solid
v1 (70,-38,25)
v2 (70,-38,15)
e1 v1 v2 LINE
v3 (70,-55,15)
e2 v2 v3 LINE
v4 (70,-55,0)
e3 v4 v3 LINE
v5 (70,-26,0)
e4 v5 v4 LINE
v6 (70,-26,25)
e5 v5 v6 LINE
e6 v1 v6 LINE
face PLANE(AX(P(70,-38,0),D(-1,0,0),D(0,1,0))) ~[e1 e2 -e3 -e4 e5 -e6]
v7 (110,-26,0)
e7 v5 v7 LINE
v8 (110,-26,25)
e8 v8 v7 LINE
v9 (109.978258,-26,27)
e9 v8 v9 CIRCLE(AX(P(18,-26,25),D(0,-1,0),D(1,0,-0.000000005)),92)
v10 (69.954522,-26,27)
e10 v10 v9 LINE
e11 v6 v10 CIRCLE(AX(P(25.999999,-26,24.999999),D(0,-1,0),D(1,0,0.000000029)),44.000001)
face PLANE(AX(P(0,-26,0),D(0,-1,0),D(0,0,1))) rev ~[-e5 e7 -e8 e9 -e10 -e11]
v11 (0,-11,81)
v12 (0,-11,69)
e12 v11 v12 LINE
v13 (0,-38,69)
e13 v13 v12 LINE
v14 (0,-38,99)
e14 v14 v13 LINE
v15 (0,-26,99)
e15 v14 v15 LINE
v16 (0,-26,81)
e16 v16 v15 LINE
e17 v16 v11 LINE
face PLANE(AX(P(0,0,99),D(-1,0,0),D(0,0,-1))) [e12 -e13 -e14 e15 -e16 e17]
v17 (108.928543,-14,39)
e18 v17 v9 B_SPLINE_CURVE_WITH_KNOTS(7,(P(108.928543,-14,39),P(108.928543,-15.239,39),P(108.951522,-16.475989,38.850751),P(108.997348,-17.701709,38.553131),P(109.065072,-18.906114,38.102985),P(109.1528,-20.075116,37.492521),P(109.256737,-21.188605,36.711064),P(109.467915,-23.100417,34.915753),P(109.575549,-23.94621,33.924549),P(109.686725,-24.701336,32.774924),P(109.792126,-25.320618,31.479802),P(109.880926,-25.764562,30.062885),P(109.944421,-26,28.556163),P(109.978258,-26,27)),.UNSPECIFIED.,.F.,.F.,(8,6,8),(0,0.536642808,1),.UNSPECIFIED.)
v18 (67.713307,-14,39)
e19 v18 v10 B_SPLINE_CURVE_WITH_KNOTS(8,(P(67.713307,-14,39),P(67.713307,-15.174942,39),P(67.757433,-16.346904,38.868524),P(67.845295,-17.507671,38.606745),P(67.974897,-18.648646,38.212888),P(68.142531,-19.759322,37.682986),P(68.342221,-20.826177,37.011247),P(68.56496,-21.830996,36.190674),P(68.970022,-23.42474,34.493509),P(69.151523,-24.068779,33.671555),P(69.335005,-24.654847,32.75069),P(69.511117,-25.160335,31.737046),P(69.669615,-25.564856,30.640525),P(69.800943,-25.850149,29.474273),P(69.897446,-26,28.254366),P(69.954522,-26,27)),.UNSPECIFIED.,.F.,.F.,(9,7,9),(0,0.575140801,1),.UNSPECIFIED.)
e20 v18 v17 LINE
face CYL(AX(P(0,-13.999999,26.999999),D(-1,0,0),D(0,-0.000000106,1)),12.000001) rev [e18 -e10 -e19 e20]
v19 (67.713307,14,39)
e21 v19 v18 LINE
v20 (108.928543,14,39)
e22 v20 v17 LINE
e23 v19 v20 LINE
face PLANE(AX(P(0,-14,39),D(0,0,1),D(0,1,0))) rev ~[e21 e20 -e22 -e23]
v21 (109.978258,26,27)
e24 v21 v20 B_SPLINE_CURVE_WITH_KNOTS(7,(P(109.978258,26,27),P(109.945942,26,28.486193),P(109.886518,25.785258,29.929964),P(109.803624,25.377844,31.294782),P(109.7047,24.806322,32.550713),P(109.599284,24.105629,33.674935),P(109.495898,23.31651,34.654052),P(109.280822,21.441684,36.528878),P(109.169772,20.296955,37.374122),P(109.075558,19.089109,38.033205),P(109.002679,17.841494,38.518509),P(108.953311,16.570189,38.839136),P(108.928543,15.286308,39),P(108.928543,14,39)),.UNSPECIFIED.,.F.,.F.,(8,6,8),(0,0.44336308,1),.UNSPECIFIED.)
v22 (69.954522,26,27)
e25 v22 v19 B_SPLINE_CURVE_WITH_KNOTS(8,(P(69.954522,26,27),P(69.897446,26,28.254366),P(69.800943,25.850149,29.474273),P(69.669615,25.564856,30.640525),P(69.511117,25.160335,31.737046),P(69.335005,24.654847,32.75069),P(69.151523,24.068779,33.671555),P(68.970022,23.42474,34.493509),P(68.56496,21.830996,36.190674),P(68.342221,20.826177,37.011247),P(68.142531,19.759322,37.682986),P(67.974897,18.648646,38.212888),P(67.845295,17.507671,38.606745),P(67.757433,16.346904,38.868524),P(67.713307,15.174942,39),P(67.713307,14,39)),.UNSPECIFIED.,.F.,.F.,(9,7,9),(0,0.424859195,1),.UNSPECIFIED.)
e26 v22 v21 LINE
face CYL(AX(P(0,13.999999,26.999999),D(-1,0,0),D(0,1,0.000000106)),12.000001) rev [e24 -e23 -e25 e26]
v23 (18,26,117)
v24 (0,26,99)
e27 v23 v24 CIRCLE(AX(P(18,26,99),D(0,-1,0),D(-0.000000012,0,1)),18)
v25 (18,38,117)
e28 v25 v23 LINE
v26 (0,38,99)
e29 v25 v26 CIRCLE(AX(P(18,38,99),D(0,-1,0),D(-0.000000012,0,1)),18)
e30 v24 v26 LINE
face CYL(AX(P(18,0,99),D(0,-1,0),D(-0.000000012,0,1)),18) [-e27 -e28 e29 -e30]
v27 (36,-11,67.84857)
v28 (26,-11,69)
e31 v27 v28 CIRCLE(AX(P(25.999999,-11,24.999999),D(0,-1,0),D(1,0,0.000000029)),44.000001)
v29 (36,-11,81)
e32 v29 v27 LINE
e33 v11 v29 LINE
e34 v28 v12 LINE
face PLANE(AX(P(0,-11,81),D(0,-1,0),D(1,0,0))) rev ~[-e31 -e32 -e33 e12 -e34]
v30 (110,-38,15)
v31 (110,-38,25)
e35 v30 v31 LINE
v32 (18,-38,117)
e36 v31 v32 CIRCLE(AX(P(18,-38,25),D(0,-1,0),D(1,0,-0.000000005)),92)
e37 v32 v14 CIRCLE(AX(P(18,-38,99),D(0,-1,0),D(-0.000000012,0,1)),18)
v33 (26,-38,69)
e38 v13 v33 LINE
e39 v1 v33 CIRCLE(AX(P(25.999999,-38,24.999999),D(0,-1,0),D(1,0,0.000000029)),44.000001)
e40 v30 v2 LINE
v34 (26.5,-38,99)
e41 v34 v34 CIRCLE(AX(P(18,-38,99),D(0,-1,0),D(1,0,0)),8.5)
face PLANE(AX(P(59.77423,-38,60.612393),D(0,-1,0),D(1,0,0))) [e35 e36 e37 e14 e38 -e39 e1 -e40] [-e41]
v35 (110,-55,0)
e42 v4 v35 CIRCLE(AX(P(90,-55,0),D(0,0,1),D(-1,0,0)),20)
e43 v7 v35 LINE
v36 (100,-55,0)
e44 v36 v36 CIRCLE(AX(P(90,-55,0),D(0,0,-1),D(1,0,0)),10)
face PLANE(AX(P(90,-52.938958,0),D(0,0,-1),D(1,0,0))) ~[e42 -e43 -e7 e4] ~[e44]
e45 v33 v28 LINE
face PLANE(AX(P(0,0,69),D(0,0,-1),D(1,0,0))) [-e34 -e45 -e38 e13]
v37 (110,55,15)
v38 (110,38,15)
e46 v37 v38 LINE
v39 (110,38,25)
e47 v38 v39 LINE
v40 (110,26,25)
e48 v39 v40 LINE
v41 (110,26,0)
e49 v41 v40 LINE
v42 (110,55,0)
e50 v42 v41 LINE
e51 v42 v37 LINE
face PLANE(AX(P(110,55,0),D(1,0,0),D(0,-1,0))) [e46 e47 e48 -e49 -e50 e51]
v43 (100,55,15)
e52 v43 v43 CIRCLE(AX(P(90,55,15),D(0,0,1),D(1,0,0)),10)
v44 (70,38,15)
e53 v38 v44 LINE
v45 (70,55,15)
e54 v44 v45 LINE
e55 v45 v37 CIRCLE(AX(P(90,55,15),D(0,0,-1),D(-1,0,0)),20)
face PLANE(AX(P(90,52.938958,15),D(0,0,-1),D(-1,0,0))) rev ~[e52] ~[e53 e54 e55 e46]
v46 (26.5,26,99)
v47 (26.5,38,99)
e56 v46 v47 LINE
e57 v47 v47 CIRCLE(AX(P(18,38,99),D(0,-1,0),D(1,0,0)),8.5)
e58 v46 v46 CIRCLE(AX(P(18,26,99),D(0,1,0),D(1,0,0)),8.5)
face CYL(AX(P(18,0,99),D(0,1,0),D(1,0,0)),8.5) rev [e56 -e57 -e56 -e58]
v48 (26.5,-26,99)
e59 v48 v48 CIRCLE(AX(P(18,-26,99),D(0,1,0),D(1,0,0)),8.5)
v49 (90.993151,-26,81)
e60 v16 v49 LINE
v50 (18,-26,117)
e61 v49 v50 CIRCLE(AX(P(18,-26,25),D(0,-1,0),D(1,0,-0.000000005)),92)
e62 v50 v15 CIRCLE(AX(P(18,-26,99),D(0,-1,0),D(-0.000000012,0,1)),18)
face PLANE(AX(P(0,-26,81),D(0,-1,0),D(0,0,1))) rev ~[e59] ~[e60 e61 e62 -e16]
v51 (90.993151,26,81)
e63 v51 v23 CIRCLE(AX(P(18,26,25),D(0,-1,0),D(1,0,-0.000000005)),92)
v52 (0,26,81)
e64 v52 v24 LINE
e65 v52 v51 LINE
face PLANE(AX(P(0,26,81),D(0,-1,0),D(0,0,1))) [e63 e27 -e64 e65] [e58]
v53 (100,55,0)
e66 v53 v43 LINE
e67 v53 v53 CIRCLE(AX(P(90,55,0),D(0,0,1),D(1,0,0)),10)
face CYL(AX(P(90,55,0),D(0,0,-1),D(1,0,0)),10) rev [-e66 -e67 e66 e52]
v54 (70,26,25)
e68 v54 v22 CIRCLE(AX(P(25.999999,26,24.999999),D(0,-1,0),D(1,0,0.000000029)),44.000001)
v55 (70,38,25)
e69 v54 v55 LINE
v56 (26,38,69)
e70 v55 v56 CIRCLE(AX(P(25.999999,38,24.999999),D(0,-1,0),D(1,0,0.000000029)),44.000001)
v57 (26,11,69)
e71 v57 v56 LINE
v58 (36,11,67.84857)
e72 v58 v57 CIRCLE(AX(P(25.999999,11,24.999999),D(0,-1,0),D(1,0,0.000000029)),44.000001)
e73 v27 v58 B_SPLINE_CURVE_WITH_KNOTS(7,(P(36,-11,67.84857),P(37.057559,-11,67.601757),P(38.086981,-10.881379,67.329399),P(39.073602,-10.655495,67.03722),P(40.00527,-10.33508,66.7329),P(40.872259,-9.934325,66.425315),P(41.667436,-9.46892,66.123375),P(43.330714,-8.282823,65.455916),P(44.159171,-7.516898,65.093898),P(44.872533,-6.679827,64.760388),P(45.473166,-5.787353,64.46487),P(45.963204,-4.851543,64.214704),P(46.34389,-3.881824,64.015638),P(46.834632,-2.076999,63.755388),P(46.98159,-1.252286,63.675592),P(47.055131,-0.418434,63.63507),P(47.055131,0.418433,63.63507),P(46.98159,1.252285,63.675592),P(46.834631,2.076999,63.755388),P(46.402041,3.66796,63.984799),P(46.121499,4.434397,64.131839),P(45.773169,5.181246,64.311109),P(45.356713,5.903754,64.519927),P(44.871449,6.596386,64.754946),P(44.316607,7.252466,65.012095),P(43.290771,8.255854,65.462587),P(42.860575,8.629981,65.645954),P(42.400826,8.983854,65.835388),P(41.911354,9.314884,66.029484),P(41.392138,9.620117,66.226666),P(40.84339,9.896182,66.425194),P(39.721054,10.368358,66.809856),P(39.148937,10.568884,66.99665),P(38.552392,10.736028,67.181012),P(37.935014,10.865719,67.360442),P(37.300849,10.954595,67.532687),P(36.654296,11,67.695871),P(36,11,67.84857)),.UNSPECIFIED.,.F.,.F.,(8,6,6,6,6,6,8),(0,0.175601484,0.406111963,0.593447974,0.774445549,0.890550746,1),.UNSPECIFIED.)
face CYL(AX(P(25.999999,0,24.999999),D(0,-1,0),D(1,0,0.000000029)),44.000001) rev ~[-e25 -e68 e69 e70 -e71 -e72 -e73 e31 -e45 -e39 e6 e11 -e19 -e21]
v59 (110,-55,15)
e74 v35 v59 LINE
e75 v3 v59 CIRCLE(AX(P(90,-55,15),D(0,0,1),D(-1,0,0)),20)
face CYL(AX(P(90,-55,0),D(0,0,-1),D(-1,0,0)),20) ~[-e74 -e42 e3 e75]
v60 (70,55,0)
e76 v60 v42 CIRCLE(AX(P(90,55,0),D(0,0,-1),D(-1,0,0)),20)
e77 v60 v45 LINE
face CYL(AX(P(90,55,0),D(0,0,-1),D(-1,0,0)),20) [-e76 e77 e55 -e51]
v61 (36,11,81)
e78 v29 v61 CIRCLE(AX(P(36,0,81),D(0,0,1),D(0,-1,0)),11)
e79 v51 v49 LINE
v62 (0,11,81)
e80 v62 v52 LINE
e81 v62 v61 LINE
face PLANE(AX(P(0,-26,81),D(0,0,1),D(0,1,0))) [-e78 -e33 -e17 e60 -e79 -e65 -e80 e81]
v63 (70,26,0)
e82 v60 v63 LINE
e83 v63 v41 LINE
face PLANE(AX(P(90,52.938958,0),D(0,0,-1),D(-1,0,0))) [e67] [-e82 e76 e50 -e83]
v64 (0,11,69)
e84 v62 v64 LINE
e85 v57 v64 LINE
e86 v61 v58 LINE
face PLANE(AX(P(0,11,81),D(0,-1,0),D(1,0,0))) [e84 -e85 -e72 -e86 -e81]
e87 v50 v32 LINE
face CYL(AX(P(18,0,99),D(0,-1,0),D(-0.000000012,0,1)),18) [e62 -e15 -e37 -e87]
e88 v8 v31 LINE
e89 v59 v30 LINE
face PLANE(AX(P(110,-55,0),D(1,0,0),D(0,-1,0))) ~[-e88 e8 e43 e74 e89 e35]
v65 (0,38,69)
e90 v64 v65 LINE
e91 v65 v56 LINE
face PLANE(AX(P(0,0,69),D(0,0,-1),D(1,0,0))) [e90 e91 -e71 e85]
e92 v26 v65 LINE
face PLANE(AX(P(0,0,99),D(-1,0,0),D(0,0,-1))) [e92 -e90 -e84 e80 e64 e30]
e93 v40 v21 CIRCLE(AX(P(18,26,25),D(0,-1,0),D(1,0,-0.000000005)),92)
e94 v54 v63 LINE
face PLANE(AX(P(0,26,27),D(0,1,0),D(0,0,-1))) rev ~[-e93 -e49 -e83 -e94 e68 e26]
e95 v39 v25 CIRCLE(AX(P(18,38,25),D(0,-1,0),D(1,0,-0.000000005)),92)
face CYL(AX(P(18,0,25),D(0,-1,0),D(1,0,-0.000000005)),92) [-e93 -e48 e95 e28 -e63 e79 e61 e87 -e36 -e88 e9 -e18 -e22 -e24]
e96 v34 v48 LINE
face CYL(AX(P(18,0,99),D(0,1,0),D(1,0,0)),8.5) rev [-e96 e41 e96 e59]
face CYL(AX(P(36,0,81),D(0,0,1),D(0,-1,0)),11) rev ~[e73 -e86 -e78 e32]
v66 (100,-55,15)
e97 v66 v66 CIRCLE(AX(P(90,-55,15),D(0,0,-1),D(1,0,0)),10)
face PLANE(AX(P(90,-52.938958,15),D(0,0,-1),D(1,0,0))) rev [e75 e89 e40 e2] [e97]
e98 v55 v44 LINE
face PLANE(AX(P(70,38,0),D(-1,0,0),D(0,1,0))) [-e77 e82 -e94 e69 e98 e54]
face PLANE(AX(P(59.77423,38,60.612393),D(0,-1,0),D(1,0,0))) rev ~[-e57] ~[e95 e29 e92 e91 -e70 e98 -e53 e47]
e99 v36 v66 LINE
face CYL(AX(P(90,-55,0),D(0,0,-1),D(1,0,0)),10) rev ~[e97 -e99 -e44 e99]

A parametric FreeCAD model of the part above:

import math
import FreeCAD as App
import Part
import Sketcher


def add_polygon(sketch, points):
    """Adds a closed chain of lines whose ends are joined by coincident constraints."""
    first, n = sketch.GeometryCount, len(points)
    for a, b in zip(points, points[1:] + points[:1]):
        sketch.addGeometry(Part.LineSegment(App.Vector(*a, 0), App.Vector(*b, 0)), False)
    for i in range(n):
        sketch.addConstraint(Sketcher.Constraint("Coincident", first + i, 2, first + (i + 1) % n, 1))

doc = App.newDocument("Part")
body = doc.addObject("PartDesign::Body", "Body")

sketch1 = body.newObject("Sketcher::SketchObject", "Sketch")
sketch1.AttachmentSupport = (doc.getObject("XZ_Plane"), [""])
sketch1.MapMode = "FlatFace"
sketch1.addGeometry([
    Part.LineSegment(App.Vector(70, 0, 0), App.Vector(110, 0, 0)),
    Part.LineSegment(App.Vector(110, 0, 0), App.Vector(110, 25, 0)),
    Part.ArcOfCircle(Part.Circle(App.Vector(18, 25, 0), App.Vector(0, 0, 1), 92), math.radians(0), math.radians(90)),
    Part.ArcOfCircle(Part.Circle(App.Vector(18, 99, 0), App.Vector(0, 0, 1), 18), math.radians(90), math.radians(180)),
    Part.LineSegment(App.Vector(0, 99, 0), App.Vector(0, 69, 0)),
    Part.LineSegment(App.Vector(0, 69, 0), App.Vector(26, 69, 0)),
    Part.ArcOfCircle(Part.Circle(App.Vector(26, 25, 0), App.Vector(0, 0, 1), 44), math.radians(0), math.radians(90)),
    Part.LineSegment(App.Vector(70, 25, 0), App.Vector(70, 0, 0)),
    Part.Circle(App.Vector(18, 99, 0), App.Vector(0, 0, 1), 8),
], False)
sketch1.addConstraint([
    Sketcher.Constraint("Coincident", 0, 2, 1, 1),
    Sketcher.Constraint("Tangent", 1, 2, 2, 1),
    Sketcher.Constraint("Tangent", 2, 2, 3, 1),
    Sketcher.Constraint("Tangent", 3, 2, 4, 1),
    Sketcher.Constraint("Coincident", 4, 2, 5, 1),
    Sketcher.Constraint("Tangent", 5, 2, 6, 2),
    Sketcher.Constraint("Tangent", 6, 1, 7, 1),
    Sketcher.Constraint("Coincident", 7, 2, 0, 1),
    Sketcher.Constraint("Horizontal", 0),
    Sketcher.Constraint("Vertical", 1),
    Sketcher.Constraint("Vertical", 4),
    Sketcher.Constraint("Horizontal", 5),
    Sketcher.Constraint("Vertical", 7),
    Sketcher.Constraint("Coincident", 8, 3, 3, 3),
    Sketcher.Constraint("PointOnObject", 0, 2, -1),
    Sketcher.Constraint("PointOnObject", 3, 2, -2),
    Sketcher.Constraint("Horizontal", 2, 3, 6, 3),
    Sketcher.Constraint("Vertical", 2, 3, 3, 3),
    Sketcher.Constraint("Diameter", 8, 17.0),
    Sketcher.Constraint("Radius", 2, 92.0),
    Sketcher.Constraint("Radius", 3, 18.0),
    Sketcher.Constraint("Radius", 6, 44.000001),
    Sketcher.Constraint("DistanceX", 0, 1, 0, 2, 40.0),
    Sketcher.Constraint("DistanceY", 1, 1, 1, 2, 25.0),
])
pad1 = body.newObject("PartDesign::Pad", "Pad")
pad1.Profile = sketch1
pad1.Length = 76
pad1.Midplane = True

sketch2 = body.newObject("Sketcher::SketchObject", "Sketch001")
sketch2.AttachmentSupport = (doc.getObject("YZ_Plane"), [""])
sketch2.MapMode = "FlatFace"
sketch2.addGeometry(Part.LineSegment(App.Vector(-26, 27, 0), App.Vector(-26, 0, 0)), False)
sketch2.addGeometry(Part.LineSegment(App.Vector(-26, 0, 0), App.Vector(26, 0, 0)), False)
sketch2.addGeometry(Part.LineSegment(App.Vector(26, 0, 0), App.Vector(26, 27, 0)), False)
sketch2.addGeometry(Part.ArcOfCircle(Part.Circle(App.Vector(14, 27, 0), App.Vector(0, 0, 1), 12), math.radians(0), math.radians(90)), False)
sketch2.addGeometry(Part.LineSegment(App.Vector(14, 39, 0), App.Vector(-14, 39, 0)), False)
sketch2.addGeometry(Part.ArcOfCircle(Part.Circle(App.Vector(-14, 27, 0), App.Vector(0, 0, 1), 12), math.radians(90), math.radians(180)), False)
add_polygon(sketch2, [(-26, 117), (-26, 81), (26, 81), (26, 117)])
sketch2.addConstraint([
    Sketcher.Constraint("Coincident", 0, 2, 1, 1),
    Sketcher.Constraint("Coincident", 1, 2, 2, 1),
    Sketcher.Constraint("Tangent", 2, 2, 3, 1),
    Sketcher.Constraint("Tangent", 3, 2, 4, 1),
    Sketcher.Constraint("Tangent", 4, 2, 5, 1),
    Sketcher.Constraint("Tangent", 5, 2, 0, 1),
    Sketcher.Constraint("Vertical", 0),
    Sketcher.Constraint("Horizontal", 1),
    Sketcher.Constraint("Vertical", 2),
    Sketcher.Constraint("Horizontal", 4),
    Sketcher.Constraint("Vertical", 6),
    Sketcher.Constraint("Horizontal", 7),
    Sketcher.Constraint("Vertical", 8),
    Sketcher.Constraint("Horizontal", 9),
    Sketcher.Constraint("Equal", 3, 5),
    Sketcher.Constraint("Symmetric", 0, 2, 1, 2, -1, 1),
    Sketcher.Constraint("Vertical", 5, 2, 6, 2),
    Sketcher.Constraint("Vertical", 2, 2, 7, 2),
    Sketcher.Constraint("Radius", 3, 12.000001),
    Sketcher.Constraint("DistanceX", 1, 1, 1, 2, 52.0),
    Sketcher.Constraint("DistanceY", 0, 2, 0, 1, 27.0),
    Sketcher.Constraint("DistanceY", 6, 2, 6, 1, 36.0),
    Sketcher.Constraint("DistanceY", -1, 1, 6, 2, 81.0),
])
pocket1 = body.newObject("PartDesign::Pocket", "Pocket")
pocket1.Profile = sketch2
pocket1.Type = "ThroughAll"
pocket1.Midplane = True

sketch3 = body.newObject("Sketcher::SketchObject", "Sketch002")
sketch3.AttachmentSupport = (doc.getObject("XY_Plane"), [""])
sketch3.MapMode = "FlatFace"
sketch3.AttachmentOffset = App.Placement(App.Vector(0, 0, 81), App.Rotation())
sketch3.addGeometry([
    Part.ArcOfCircle(Part.Circle(App.Vector(0, 0, 0), App.Vector(0, 0, 1), 11), math.radians(90), math.radians(270)),
    Part.LineSegment(App.Vector(0, -11, 0), App.Vector(36, -11, 0)),
    Part.ArcOfCircle(Part.Circle(App.Vector(36, 0, 0), App.Vector(0, 0, 1), 11), math.radians(-90), math.radians(90)),
    Part.LineSegment(App.Vector(36, 11, 0), App.Vector(0, 11, 0)),
], False)
sketch3.addConstraint([
    Sketcher.Constraint("Tangent", 0, 2, 1, 1),
    Sketcher.Constraint("Tangent", 1, 2, 2, 1),
    Sketcher.Constraint("Tangent", 2, 2, 3, 1),
    Sketcher.Constraint("Tangent", 3, 2, 0, 1),
    Sketcher.Constraint("Horizontal", 1),
    Sketcher.Constraint("Horizontal", 3),
    Sketcher.Constraint("Coincident", 0, 3, -1, 1),
    Sketcher.Constraint("Radius", 0, 11.0),
    Sketcher.Constraint("DistanceX", 1, 1, 1, 2, 36.0),
])
pocket2 = body.newObject("PartDesign::Pocket", "Pocket001")
pocket2.Profile = sketch3
pocket2.Type = "ThroughAll"

sketch4 = body.newObject("Sketcher::SketchObject", "Sketch003")
sketch4.AttachmentSupport = (doc.getObject("XY_Plane"), [""])
sketch4.MapMode = "FlatFace"
sketch4.addGeometry([
    Part.LineSegment(App.Vector(70, 55, 0), App.Vector(70, 38, 0)),
    Part.LineSegment(App.Vector(70, 38, 0), App.Vector(110, 38, 0)),
    Part.LineSegment(App.Vector(110, 38, 0), App.Vector(110, 55, 0)),
    Part.ArcOfCircle(Part.Circle(App.Vector(90, 55, 0), App.Vector(0, 0, 1), 20), math.radians(0), math.radians(180)),
    Part.Circle(App.Vector(90, 55, 0), App.Vector(0, 0, 1), 10),
], False)
sketch4.addConstraint([
    Sketcher.Constraint("Coincident", 0, 2, 1, 1),
    Sketcher.Constraint("Coincident", 1, 2, 2, 1),
    Sketcher.Constraint("Tangent", 2, 2, 3, 1),
    Sketcher.Constraint("Tangent", 3, 2, 0, 1),
    Sketcher.Constraint("Vertical", 0),
    Sketcher.Constraint("Horizontal", 1),
    Sketcher.Constraint("Vertical", 2),
    Sketcher.Constraint("Coincident", 4, 3, 3, 3),
    Sketcher.Constraint("Diameter", 4, 20.0),
    Sketcher.Constraint("Radius", 3, 20.0),
    Sketcher.Constraint("DistanceY", 0, 2, 0, 1, 17.0),
    Sketcher.Constraint("DistanceX", -1, 1, 3, 3, 90.0),
    Sketcher.Constraint("DistanceY", -1, 1, 3, 3, 55.0),
])
pad2 = body.newObject("PartDesign::Pad", "Pad001")
pad2.Profile = sketch4
pad2.Length = 15
doc.recompute()

mirrored = body.newObject("PartDesign::Mirrored", "Mirrored")
mirrored.Originals = [pad2]
mirrored.MirrorPlane = (doc.getObject("XZ_Plane"), [""])
body.Tip = mirrored

doc.recompute()
